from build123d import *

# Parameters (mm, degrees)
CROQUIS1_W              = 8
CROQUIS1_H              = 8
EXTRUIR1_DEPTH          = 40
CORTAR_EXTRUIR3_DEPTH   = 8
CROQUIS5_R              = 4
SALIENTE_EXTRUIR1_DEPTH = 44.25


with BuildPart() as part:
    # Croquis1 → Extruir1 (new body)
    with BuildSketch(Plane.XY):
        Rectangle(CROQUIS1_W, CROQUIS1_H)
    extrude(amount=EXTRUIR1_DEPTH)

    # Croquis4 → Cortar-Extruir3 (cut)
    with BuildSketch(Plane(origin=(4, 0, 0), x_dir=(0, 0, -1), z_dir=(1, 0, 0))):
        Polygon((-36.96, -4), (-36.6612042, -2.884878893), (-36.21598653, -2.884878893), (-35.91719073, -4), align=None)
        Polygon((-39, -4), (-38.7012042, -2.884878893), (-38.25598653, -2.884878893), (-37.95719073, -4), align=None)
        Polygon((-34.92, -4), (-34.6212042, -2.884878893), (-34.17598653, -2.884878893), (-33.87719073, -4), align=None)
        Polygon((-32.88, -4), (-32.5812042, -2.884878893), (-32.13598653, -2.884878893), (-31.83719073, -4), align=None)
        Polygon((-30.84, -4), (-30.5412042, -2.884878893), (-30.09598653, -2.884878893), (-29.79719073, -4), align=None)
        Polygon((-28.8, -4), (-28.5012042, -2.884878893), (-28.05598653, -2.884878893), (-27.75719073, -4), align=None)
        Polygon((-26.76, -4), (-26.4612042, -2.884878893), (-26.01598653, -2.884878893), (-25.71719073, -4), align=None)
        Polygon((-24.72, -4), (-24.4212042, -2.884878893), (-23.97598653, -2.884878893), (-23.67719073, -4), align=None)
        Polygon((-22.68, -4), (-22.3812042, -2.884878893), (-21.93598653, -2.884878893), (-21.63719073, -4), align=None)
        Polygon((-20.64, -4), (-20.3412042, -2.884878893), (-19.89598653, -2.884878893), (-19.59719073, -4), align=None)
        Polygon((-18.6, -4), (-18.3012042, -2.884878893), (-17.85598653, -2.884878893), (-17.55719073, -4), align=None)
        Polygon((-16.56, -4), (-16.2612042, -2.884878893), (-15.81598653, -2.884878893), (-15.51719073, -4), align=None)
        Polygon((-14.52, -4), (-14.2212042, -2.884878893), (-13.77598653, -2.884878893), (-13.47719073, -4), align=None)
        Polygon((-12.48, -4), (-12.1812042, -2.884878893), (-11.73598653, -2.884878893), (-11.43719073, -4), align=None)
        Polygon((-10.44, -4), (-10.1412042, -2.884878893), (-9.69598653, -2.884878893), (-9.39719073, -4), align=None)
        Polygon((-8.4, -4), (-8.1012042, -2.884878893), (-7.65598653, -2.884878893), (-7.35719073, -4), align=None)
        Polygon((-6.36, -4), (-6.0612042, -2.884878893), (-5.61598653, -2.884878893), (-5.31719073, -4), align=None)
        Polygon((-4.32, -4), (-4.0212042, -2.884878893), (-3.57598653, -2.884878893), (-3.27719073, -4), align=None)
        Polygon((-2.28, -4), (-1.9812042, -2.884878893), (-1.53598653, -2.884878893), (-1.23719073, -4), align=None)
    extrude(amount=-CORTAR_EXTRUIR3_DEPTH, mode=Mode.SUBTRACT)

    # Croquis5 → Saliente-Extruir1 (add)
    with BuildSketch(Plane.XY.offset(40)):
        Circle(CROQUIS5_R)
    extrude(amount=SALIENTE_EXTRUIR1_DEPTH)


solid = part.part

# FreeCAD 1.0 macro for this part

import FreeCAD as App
import Part
import Sketcher

V = App.Vector
Q = App.Units.Quantity


def add_polygon(sketch, points):
    """Adds a closed chain of lines whose ends are joined by coincident constraints."""
    first, n = sketch.GeometryCount, len(points)
    for a, b in zip(points, points[1:] + points[:1]):
        sketch.addGeometry(Part.LineSegment(App.Vector(*a, 0), App.Vector(*b, 0)), False)
    for i in range(n):
        sketch.addConstraint(Sketcher.Constraint("Coincident", first + i, 2, first + (i + 1) % n, 1))

doc = App.newDocument("Part")
body = doc.addObject("PartDesign::Body", "Body")

sketch1 = body.newObject("Sketcher::SketchObject", "Sketch")
sketch1.AttachmentSupport = (doc.getObject("XY_Plane"), [""])
sketch1.MapMode = "FlatFace"
add_polygon(sketch1, [(-4, 4), (-4, -4), (4, -4), (4, 4)])
sketch1.addConstraint(Sketcher.Constraint("Vertical", 0))
sketch1.addConstraint(Sketcher.Constraint("Horizontal", 1))
sketch1.addConstraint(Sketcher.Constraint("Vertical", 2))
sketch1.addConstraint(Sketcher.Constraint("Horizontal", 3))
sketch1.addConstraint(Sketcher.Constraint("Symmetric", 0, 2, 2, 2, -1, 1))
sketch1.addConstraint(Sketcher.Constraint("Equal", 3, 0))
sketch1.addConstraint(Sketcher.Constraint("DistanceX", 1, 1, 1, 2, Q("8 mm")))
pad1 = body.newObject("PartDesign::Pad", "Pad")
pad1.Profile = sketch1
pad1.Length = 40

sketch2 = body.newObject("Sketcher::SketchObject", "Sketch001")
sketch2.AttachmentSupport = (doc.getObject("YZ_Plane"), [""])
sketch2.MapMode = "FlatFace"
sketch2.AttachmentOffset = App.Placement(V(0, 0, 4), App.Rotation())
add_polygon(sketch2, [(-2.88, 36.66), (-4, 36.96), (-4, 35.92), (-2.88, 36.22)])
add_polygon(sketch2, [(-2.88, 38.7), (-4, 39), (-4, 37.96), (-2.88, 38.26)])
add_polygon(sketch2, [(-2.88, 34.62), (-4, 34.92), (-4, 33.88), (-2.88, 34.18)])
add_polygon(sketch2, [(-2.88, 32.58), (-4, 32.88), (-4, 31.84), (-2.88, 32.14)])
add_polygon(sketch2, [(-2.88, 30.54), (-4, 30.84), (-4, 29.8), (-2.88, 30.1)])
add_polygon(sketch2, [(-2.88, 28.5), (-4, 28.8), (-4, 27.76), (-2.88, 28.06)])
add_polygon(sketch2, [(-2.88, 26.46), (-4, 26.76), (-4, 25.72), (-2.88, 26.02)])
add_polygon(sketch2, [(-2.88, 24.42), (-4, 24.72), (-4, 23.68), (-2.88, 23.98)])
add_polygon(sketch2, [(-2.88, 22.38), (-4, 22.68), (-4, 21.64), (-2.88, 21.94)])
add_polygon(sketch2, [(-2.88, 20.34), (-4, 20.64), (-4, 19.6), (-2.88, 19.9)])
add_polygon(sketch2, [(-2.88, 18.3), (-4, 18.6), (-4, 17.56), (-2.88, 17.86)])
add_polygon(sketch2, [(-2.88, 16.26), (-4, 16.56), (-4, 15.52), (-2.88, 15.82)])
add_polygon(sketch2, [(-2.88, 14.22), (-4, 14.52), (-4, 13.48), (-2.88, 13.78)])
add_polygon(sketch2, [(-2.88, 12.18), (-4, 12.48), (-4, 11.44), (-2.88, 11.74)])
add_polygon(sketch2, [(-2.88, 10.14), (-4, 10.44), (-4, 9.4), (-2.88, 9.7)])
add_polygon(sketch2, [(-2.88, 8.1), (-4, 8.4), (-4, 7.36), (-2.88, 7.66)])
add_polygon(sketch2, [(-2.88, 6.06), (-4, 6.36), (-4, 5.32), (-2.88, 5.62)])
add_polygon(sketch2, [(-2.88, 4.02), (-4, 4.32), (-4, 3.28), (-2.88, 3.58)])
add_polygon(sketch2, [(-2.88, 1.98), (-4, 2.28), (-4, 1.24), (-2.88, 1.54)])
sketch2.addConstraint(Sketcher.Constraint("Vertical", 1))
sketch2.addConstraint(Sketcher.Constraint("Vertical", 3))
sketch2.addConstraint(Sketcher.Constraint("Vertical", 5))
sketch2.addConstraint(Sketcher.Constraint("Vertical", 7))
sketch2.addConstraint(Sketcher.Constraint("Vertical", 9))
sketch2.addConstraint(Sketcher.Constraint("Vertical", 11))
sketch2.addConstraint(Sketcher.Constraint("Vertical", 13))
sketch2.addConstraint(Sketcher.Constraint("Vertical", 15))
sketch2.addConstraint(Sketcher.Constraint("Vertical", 17))
sketch2.addConstraint(Sketcher.Constraint("Vertical", 19))
sketch2.addConstraint(Sketcher.Constraint("Vertical", 21))
sketch2.addConstraint(Sketcher.Constraint("Vertical", 23))
sketch2.addConstraint(Sketcher.Constraint("Vertical", 25))
sketch2.addConstraint(Sketcher.Constraint("Vertical", 27))
sketch2.addConstraint(Sketcher.Constraint("Vertical", 29))
sketch2.addConstraint(Sketcher.Constraint("Vertical", 31))
sketch2.addConstraint(Sketcher.Constraint("Vertical", 33))
sketch2.addConstraint(Sketcher.Constraint("Vertical", 35))
sketch2.addConstraint(Sketcher.Constraint("Vertical", 37))
sketch2.addConstraint(Sketcher.Constraint("Vertical", 39))
sketch2.addConstraint(Sketcher.Constraint("Vertical", 41))
sketch2.addConstraint(Sketcher.Constraint("Vertical", 43))
sketch2.addConstraint(Sketcher.Constraint("Vertical", 45))
sketch2.addConstraint(Sketcher.Constraint("Vertical", 47))
sketch2.addConstraint(Sketcher.Constraint("Vertical", 49))
sketch2.addConstraint(Sketcher.Constraint("Vertical", 51))
sketch2.addConstraint(Sketcher.Constraint("Vertical", 53))
sketch2.addConstraint(Sketcher.Constraint("Vertical", 55))
sketch2.addConstraint(Sketcher.Constraint("Vertical", 57))
sketch2.addConstraint(Sketcher.Constraint("Vertical", 59))
sketch2.addConstraint(Sketcher.Constraint("Vertical", 61))
sketch2.addConstraint(Sketcher.Constraint("Vertical", 63))
sketch2.addConstraint(Sketcher.Constraint("Vertical", 65))
sketch2.addConstraint(Sketcher.Constraint("Vertical", 67))
sketch2.addConstraint(Sketcher.Constraint("Vertical", 69))
sketch2.addConstraint(Sketcher.Constraint("Vertical", 71))
sketch2.addConstraint(Sketcher.Constraint("Vertical", 73))
sketch2.addConstraint(Sketcher.Constraint("Vertical", 75))
sketch2.addConstraint(Sketcher.Constraint("Parallel", 0, 4))
sketch2.addConstraint(Sketcher.Constraint("Parallel", 2, 6))
sketch2.addConstraint(Sketcher.Constraint("Parallel", 4, 8))
sketch2.addConstraint(Sketcher.Constraint("Parallel", 6, 10))
sketch2.addConstraint(Sketcher.Constraint("Parallel", 8, 12))
sketch2.addConstraint(Sketcher.Constraint("Parallel", 10, 14))
sketch2.addConstraint(Sketcher.Constraint("Parallel", 12, 16))
sketch2.addConstraint(Sketcher.Constraint("Parallel", 14, 18))
sketch2.addConstraint(Sketcher.Constraint("Parallel", 16, 20))
sketch2.addConstraint(Sketcher.Constraint("Parallel", 18, 22))
sketch2.addConstraint(Sketcher.Constraint("Parallel", 20, 24))
sketch2.addConstraint(Sketcher.Constraint("Parallel", 22, 26))
sketch2.addConstraint(Sketcher.Constraint("Parallel", 24, 28))
sketch2.addConstraint(Sketcher.Constraint("Parallel", 26, 30))
sketch2.addConstraint(Sketcher.Constraint("Parallel", 28, 32))
sketch2.addConstraint(Sketcher.Constraint("Parallel", 30, 34))
sketch2.addConstraint(Sketcher.Constraint("Parallel", 32, 36))
sketch2.addConstraint(Sketcher.Constraint("Parallel", 34, 38))
sketch2.addConstraint(Sketcher.Constraint("Parallel", 36, 40))
sketch2.addConstraint(Sketcher.Constraint("Parallel", 38, 42))
sketch2.addConstraint(Sketcher.Constraint("Parallel", 40, 44))
sketch2.addConstraint(Sketcher.Constraint("Parallel", 42, 46))
sketch2.addConstraint(Sketcher.Constraint("Parallel", 44, 48))
sketch2.addConstraint(Sketcher.Constraint("Parallel", 46, 50))
sketch2.addConstraint(Sketcher.Constraint("Parallel", 48, 52))
sketch2.addConstraint(Sketcher.Constraint("Parallel", 50, 54))
sketch2.addConstraint(Sketcher.Constraint("Parallel", 52, 56))
sketch2.addConstraint(Sketcher.Constraint("Parallel", 54, 58))
sketch2.addConstraint(Sketcher.Constraint("Parallel", 56, 60))
sketch2.addConstraint(Sketcher.Constraint("Parallel", 58, 62))
sketch2.addConstraint(Sketcher.Constraint("Parallel", 60, 64))
sketch2.addConstraint(Sketcher.Constraint("Parallel", 62, 66))
sketch2.addConstraint(Sketcher.Constraint("Parallel", 64, 68))
sketch2.addConstraint(Sketcher.Constraint("Parallel", 66, 70))
sketch2.addConstraint(Sketcher.Constraint("Parallel", 68, 72))
sketch2.addConstraint(Sketcher.Constraint("Parallel", 70, 74))
sketch2.addConstraint(Sketcher.Constraint("Vertical", 1, 2, 4, 2))
sketch2.addConstraint(Sketcher.Constraint("Vertical", 3, 2, 6, 2))
sketch2.addConstraint(Sketcher.Constraint("Vertical", 5, 2, 8, 2))
sketch2.addConstraint(Sketcher.Constraint("Vertical", 7, 2, 10, 2))
sketch2.addConstraint(Sketcher.Constraint("Vertical", 9, 2, 12, 2))
sketch2.addConstraint(Sketcher.Constraint("Vertical", 11, 2, 14, 2))
sketch2.addConstraint(Sketcher.Constraint("Vertical", 13, 2, 16, 2))
sketch2.addConstraint(Sketcher.Constraint("Vertical", 15, 2, 18, 2))
sketch2.addConstraint(Sketcher.Constraint("Vertical", 17, 2, 20, 2))
sketch2.addConstraint(Sketcher.Constraint("Vertical", 19, 2, 22, 2))
sketch2.addConstraint(Sketcher.Constraint("Vertical", 21, 2, 24, 2))
sketch2.addConstraint(Sketcher.Constraint("Vertical", 23, 2, 26, 2))
sketch2.addConstraint(Sketcher.Constraint("Vertical", 25, 2, 28, 2))
sketch2.addConstraint(Sketcher.Constraint("Vertical", 27, 2, 30, 2))
sketch2.addConstraint(Sketcher.Constraint("Vertical", 29, 2, 32, 2))
sketch2.addConstraint(Sketcher.Constraint("Vertical", 31, 2, 34, 2))
sketch2.addConstraint(Sketcher.Constraint("Vertical", 33, 2, 36, 2))
sketch2.addConstraint(Sketcher.Constraint("Vertical", 35, 2, 38, 2))
sketch2.addConstraint(Sketcher.Constraint("Vertical", 37, 2, 40, 2))
sketch2.addConstraint(Sketcher.Constraint("Vertical", 39, 2, 42, 2))
sketch2.addConstraint(Sketcher.Constraint("Vertical", 41, 2, 44, 2))
sketch2.addConstraint(Sketcher.Constraint("Vertical", 43, 2, 46, 2))
sketch2.addConstraint(Sketcher.Constraint("Vertical", 45, 2, 48, 2))
sketch2.addConstraint(Sketcher.Constraint("Vertical", 47, 2, 50, 2))
sketch2.addConstraint(Sketcher.Constraint("Vertical", 49, 2, 52, 2))
sketch2.addConstraint(Sketcher.Constraint("Vertical", 51, 2, 54, 2))
sketch2.addConstraint(Sketcher.Constraint("Vertical", 53, 2, 56, 2))
sketch2.addConstraint(Sketcher.Constraint("Vertical", 55, 2, 58, 2))
sketch2.addConstraint(Sketcher.Constraint("Vertical", 57, 2, 60, 2))
sketch2.addConstraint(Sketcher.Constraint("Vertical", 59, 2, 62, 2))
sketch2.addConstraint(Sketcher.Constraint("Vertical", 61, 2, 64, 2))
sketch2.addConstraint(Sketcher.Constraint("Vertical", 63, 2, 66, 2))
sketch2.addConstraint(Sketcher.Constraint("Vertical", 65, 2, 68, 2))
sketch2.addConstraint(Sketcher.Constraint("Vertical", 67, 2, 70, 2))
sketch2.addConstraint(Sketcher.Constraint("Vertical", 69, 2, 72, 2))
sketch2.addConstraint(Sketcher.Constraint("Vertical", 71, 2, 74, 2))
sketch2.addConstraint(Sketcher.Constraint("Equal", 1, 5))
sketch2.addConstraint(Sketcher.Constraint("Equal", 5, 9))
sketch2.addConstraint(Sketcher.Constraint("Equal", 9, 13))
sketch2.addConstraint(Sketcher.Constraint("Equal", 13, 17))
sketch2.addConstraint(Sketcher.Constraint("Equal", 17, 21))
sketch2.addConstraint(Sketcher.Constraint("Equal", 21, 25))
sketch2.addConstraint(Sketcher.Constraint("Equal", 25, 29))
sketch2.addConstraint(Sketcher.Constraint("Equal", 29, 33))
sketch2.addConstraint(Sketcher.Constraint("Equal", 33, 37))
sketch2.addConstraint(Sketcher.Constraint("Equal", 37, 41))
sketch2.addConstraint(Sketcher.Constraint("Equal", 41, 45))
sketch2.addConstraint(Sketcher.Constraint("Equal", 45, 49))
sketch2.addConstraint(Sketcher.Constraint("Equal", 49, 53))
sketch2.addConstraint(Sketcher.Constraint("Equal", 53, 57))
sketch2.addConstraint(Sketcher.Constraint("Equal", 57, 61))
sketch2.addConstraint(Sketcher.Constraint("Equal", 61, 65))
sketch2.addConstraint(Sketcher.Constraint("Equal", 65, 69))
sketch2.addConstraint(Sketcher.Constraint("Equal", 69, 73))
sketch2.addConstraint(Sketcher.Constraint("Equal", 0, 2))
sketch2.addConstraint(Sketcher.Constraint("Angle", 0, Q("165 deg")))
sketch2.addConstraint(Sketcher.Constraint("DistanceX", 0, 2, -1, 1, Q("4 mm")))
sketch2.addConstraint(Sketcher.Constraint("DistanceY", -1, 1, 4, 2, Q("39 mm")))
sketch2.addConstraint(Sketcher.Constraint("DistanceY", -1, 1, 20, 2, Q("28.8 mm")))
sketch2.addConstraint(Sketcher.Constraint("DistanceY", -1, 1, 40, 2, Q("18.6 mm")))
sketch2.addConstraint(Sketcher.Constraint("DistanceY", -1, 1, 60, 2, Q("8.4 mm")))
sketch2.addConstraint(Sketcher.Constraint("DistanceY", -1, 1, 0, 2, Q("36.96 mm")))
sketch2.addConstraint(Sketcher.Constraint("DistanceY", -1, 1, 8, 2, Q("34.92 mm")))
sketch2.addConstraint(Sketcher.Constraint("DistanceY", -1, 1, 12, 2, Q("32.88 mm")))
sketch2.addConstraint(Sketcher.Constraint("DistanceY", -1, 1, 16, 2, Q("30.84 mm")))
sketch2.addConstraint(Sketcher.Constraint("DistanceY", -1, 1, 24, 2, Q("26.76 mm")))
sketch2.addConstraint(Sketcher.Constraint("DistanceY", -1, 1, 28, 2, Q("24.72 mm")))
sketch2.addConstraint(Sketcher.Constraint("DistanceY", -1, 1, 32, 2, Q("22.68 mm")))
sketch2.addConstraint(Sketcher.Constraint("DistanceY", -1, 1, 36, 2, Q("20.64 mm")))
sketch2.addConstraint(Sketcher.Constraint("DistanceY", -1, 1, 44, 2, Q("16.56 mm")))
sketch2.addConstraint(Sketcher.Constraint("DistanceY", -1, 1, 48, 2, Q("14.52 mm")))
sketch2.addConstraint(Sketcher.Constraint("DistanceY", -1, 1, 52, 2, Q("12.48 mm")))
sketch2.addConstraint(Sketcher.Constraint("DistanceY", -1, 1, 56, 2, Q("10.44 mm")))
sketch2.addConstraint(Sketcher.Constraint("DistanceY", -1, 1, 64, 2, Q("6.36 mm")))
sketch2.addConstraint(Sketcher.Constraint("DistanceY", -1, 1, 68, 2, Q("4.32 mm")))
sketch2.addConstraint(Sketcher.Constraint("DistanceY", -1, 1, 72, 2, Q("2.28 mm")))
sketch2.addConstraint(Sketcher.Constraint("DistanceY", 1, 2, 1, 1, Q("1.042809 mm")))
sketch2.addConstraint(Sketcher.Constraint("Distance", 0, Q("1.154458 mm")))
pocket1 = body.newObject("PartDesign::Pocket", "Pocket")
pocket1.Profile = sketch2
pocket1.Length = 8

sketch3 = body.newObject("Sketcher::SketchObject", "Sketch002")
sketch3.AttachmentSupport = (doc.getObject("XY_Plane"), [""])
sketch3.MapMode = "FlatFace"
sketch3.AttachmentOffset = App.Placement(V(0, 0, 40), App.Rotation())
sketch3.addGeometry(Part.Circle(V(0, 0, 0), V(0, 0, 1), 4), False)
sketch3.addConstraint(Sketcher.Constraint("Coincident", 0, 3, -1, 1))
sketch3.addConstraint(Sketcher.Constraint("Diameter", 0, Q("8 mm")))
pad2 = body.newObject("PartDesign::Pad", "Pad001")
pad2.Profile = sketch3
pad2.Length = 44.25

doc.recompute()
